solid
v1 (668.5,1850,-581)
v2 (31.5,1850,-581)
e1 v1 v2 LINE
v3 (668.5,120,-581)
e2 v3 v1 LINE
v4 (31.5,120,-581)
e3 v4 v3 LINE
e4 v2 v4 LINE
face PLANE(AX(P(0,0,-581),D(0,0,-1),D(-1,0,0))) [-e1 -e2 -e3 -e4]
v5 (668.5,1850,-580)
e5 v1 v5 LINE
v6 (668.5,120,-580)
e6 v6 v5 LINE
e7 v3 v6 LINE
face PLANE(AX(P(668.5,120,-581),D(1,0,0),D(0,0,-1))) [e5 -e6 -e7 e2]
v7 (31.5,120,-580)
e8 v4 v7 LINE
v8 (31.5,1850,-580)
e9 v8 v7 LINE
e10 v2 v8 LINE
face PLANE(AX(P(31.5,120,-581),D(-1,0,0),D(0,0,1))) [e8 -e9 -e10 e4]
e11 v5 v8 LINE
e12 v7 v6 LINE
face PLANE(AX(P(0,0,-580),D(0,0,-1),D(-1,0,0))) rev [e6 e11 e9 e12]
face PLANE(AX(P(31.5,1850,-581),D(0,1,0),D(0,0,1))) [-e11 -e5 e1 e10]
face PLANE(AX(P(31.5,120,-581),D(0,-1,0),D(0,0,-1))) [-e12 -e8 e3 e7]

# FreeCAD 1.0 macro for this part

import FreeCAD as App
import Part
import Sketcher
from FreeCAD import Vector


def add_polygon(sketch, points):
    """Adds a closed chain of lines whose ends are joined by coincident constraints."""
    first, n = sketch.GeometryCount, len(points)
    for a, b in zip(points, points[1:] + points[:1]):
        sketch.addGeometry(Part.LineSegment(App.Vector(*a, 0), App.Vector(*b, 0)), False)
    for i in range(n):
        sketch.addConstraint(Sketcher.Constraint("Coincident", first + i, 2, first + (i + 1) % n, 1))

doc = App.newDocument("Part")
body = doc.addObject("PartDesign::Body", "Body")

# Sketch on XY plane
sketch1 = doc.addObject("Sketcher::SketchObject", "Sketch")
body.addObject(sketch1)
sketch1.AttachmentSupport = (doc.XY_Plane, [""])
sketch1.MapMode = "FlatFace"
sketch1.AttachmentOffset = App.Placement(Vector(0, 0, -580), App.Rotation())
add_polygon(sketch1, [(31.5, 1850), (31.5, 120), (668.5, 120), (668.5, 1850)])  # lines 0-3
sketch1.addConstraint([
    Sketcher.Constraint("Vertical", 0),
    Sketcher.Constraint("Horizontal", 1),
    Sketcher.Constraint("Vertical", 2),
    Sketcher.Constraint("Horizontal", 3),
    Sketcher.Constraint("DistanceX", 1, 1, 1, 2, 637.0),
    Sketcher.Constraint("DistanceY", 0, 2, 0, 1, 1730.0),
    Sketcher.Constraint("DistanceY", -1, 1, 0, 2, 120.0),
    Sketcher.Constraint("DistanceX", -1, 1, 0, 2, 31.5),
])
pad1 = doc.addObject("PartDesign::Pad", "Pad")
body.addObject(pad1)
pad1.Profile = sketch1
pad1.Length = 1
pad1.Reversed = True

doc.recompute()
